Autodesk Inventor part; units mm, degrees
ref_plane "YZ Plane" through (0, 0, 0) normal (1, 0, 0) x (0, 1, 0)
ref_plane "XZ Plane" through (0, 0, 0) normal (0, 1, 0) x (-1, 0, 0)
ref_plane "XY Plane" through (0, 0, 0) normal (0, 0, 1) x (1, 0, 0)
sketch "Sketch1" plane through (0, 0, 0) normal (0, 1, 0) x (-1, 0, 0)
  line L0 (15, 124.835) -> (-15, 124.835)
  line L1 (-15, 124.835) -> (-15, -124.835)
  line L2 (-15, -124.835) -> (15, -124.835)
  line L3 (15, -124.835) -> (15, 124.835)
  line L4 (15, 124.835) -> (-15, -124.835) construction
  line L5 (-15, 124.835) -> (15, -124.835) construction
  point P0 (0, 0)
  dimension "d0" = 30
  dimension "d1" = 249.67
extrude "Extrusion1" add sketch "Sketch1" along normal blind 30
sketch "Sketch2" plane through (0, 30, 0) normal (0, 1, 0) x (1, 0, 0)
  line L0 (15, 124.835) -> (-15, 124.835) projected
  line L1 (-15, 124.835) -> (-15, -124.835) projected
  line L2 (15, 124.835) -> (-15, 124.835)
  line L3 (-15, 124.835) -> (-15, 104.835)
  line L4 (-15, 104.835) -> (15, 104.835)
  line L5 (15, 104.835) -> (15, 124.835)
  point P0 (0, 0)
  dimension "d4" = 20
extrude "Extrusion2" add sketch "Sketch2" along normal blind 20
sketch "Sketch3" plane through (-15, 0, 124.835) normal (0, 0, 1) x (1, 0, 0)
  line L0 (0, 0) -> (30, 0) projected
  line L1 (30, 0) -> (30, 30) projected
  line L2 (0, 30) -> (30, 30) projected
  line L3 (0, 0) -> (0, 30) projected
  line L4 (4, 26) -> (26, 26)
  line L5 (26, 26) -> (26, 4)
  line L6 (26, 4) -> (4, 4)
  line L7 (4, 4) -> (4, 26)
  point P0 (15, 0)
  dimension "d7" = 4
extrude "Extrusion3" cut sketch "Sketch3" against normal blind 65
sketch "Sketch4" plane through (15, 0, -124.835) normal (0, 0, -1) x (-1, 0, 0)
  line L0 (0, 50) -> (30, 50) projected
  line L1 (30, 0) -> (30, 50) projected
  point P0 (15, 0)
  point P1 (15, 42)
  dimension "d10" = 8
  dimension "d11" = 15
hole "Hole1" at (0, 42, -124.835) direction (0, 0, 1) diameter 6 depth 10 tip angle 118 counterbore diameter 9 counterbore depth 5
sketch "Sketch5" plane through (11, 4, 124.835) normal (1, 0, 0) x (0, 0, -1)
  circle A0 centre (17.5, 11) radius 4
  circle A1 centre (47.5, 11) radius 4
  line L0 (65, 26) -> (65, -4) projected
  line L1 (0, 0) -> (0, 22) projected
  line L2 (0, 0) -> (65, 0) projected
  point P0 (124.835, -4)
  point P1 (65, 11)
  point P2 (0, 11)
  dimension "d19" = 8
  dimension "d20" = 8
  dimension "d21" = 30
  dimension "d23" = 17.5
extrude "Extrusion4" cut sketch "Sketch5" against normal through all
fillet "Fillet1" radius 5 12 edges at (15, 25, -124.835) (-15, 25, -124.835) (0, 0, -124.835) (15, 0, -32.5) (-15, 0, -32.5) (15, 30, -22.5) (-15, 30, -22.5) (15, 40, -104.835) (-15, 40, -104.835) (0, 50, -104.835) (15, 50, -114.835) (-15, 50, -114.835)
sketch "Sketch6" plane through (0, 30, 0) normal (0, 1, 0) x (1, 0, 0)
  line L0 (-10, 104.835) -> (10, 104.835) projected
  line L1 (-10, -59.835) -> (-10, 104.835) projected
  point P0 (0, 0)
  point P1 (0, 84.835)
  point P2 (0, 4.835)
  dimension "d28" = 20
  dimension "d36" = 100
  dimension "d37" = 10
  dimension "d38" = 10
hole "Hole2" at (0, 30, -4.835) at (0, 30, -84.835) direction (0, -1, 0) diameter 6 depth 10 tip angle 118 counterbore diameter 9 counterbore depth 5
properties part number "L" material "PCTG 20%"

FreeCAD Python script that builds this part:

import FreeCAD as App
import Part
import Sketcher
Q = App.Units.Quantity


def edges_at(feature, points):
    """Names of the edges that pass closest to the given points."""
    edges = feature.Shape.Edges
    near = lambda p: min(range(len(edges)), key=lambda i: edges[i].distToShape(Part.Vertex(*p))[0])
    return sorted({f"Edge{near(p) + 1}" for p in points})


def add_polygon(sketch, points):
    """Adds a closed chain of lines whose ends are joined by coincident constraints."""
    first, n = sketch.GeometryCount, len(points)
    for a, b in zip(points, points[1:] + points[:1]):
        sketch.addGeometry(Part.LineSegment(App.Vector(*a, 0), App.Vector(*b, 0)), False)
    for i in range(n):
        sketch.addConstraint(Sketcher.Constraint("Coincident", first + i, 2, first + (i + 1) % n, 1))

doc = App.newDocument("Part")
body = doc.addObject("PartDesign::Body", "Body")

# Sketch on XZ plane
sketch1 = body.newObject("Sketcher::SketchObject", "Sketch")
sketch1.AttachmentSupport = (doc.getObject("XZ_Plane"), [""])
sketch1.MapMode = "FlatFace"
add_polygon(sketch1, [(-15, -125), (-15, 125), (15, 125), (15, -125)])  # lines 0-3
sketch1.addConstraint([
    Sketcher.Constraint("Vertical", 0),
    Sketcher.Constraint("Horizontal", 1),
    Sketcher.Constraint("Vertical", 2),
    Sketcher.Constraint("Horizontal", 3),
    Sketcher.Constraint("Symmetric", 0, 2, 2, 2, -1, 1),
    Sketcher.Constraint("DistanceX", 1, 1, 1, 2, Q("30 mm")),
    Sketcher.Constraint("DistanceY", 0, 1, 0, 2, Q("249.67 mm")),
])
pad1 = body.newObject("PartDesign::Pad", "Pad")
pad1.Profile = sketch1
pad1.Length = 30
pad1.Reversed = True

# Sketch on XZ plane
sketch2 = body.newObject("Sketcher::SketchObject", "Sketch001")
sketch2.AttachmentSupport = (doc.getObject("XZ_Plane"), [""])
sketch2.MapMode = "FlatFace"
sketch2.AttachmentOffset = App.Placement(App.Vector(0, 0, -30), App.Rotation())
add_polygon(sketch2, [(15, -105), (15, -125), (-15, -125), (-15, -105)])  # lines 0-3
sketch2.addConstraint([
    Sketcher.Constraint("Vertical", 0),
    Sketcher.Constraint("Horizontal", 1),
    Sketcher.Constraint("Vertical", 2),
    Sketcher.Constraint("Horizontal", 3),
    Sketcher.Constraint("DistanceY", 0, 2, 0, 1, Q("20 mm")),
    Sketcher.Constraint("DistanceX", 1, 2, 1, 1, Q("30 mm")),
    Sketcher.Constraint("DistanceX", -1, 1, 0, 2, Q("15 mm")),
    Sketcher.Constraint("DistanceY", 0, 2, -1, 1, Q("124.835 mm")),
])
pad2 = body.newObject("PartDesign::Pad", "Pad001")
pad2.Profile = sketch2
pad2.Length = 20
pad2.Reversed = True

# Sketch on XY plane
sketch3 = body.newObject("Sketcher::SketchObject", "Sketch002")
sketch3.AttachmentSupport = (doc.getObject("XY_Plane"), [""])
sketch3.MapMode = "FlatFace"
sketch3.AttachmentOffset = App.Placement(App.Vector(0, 0, 124.835), App.Rotation())
add_polygon(sketch3, [(-15, 30), (-15, 0), (15, 0), (15, 30)])  # lines 0-3
add_polygon(sketch3, [(-11, 4), (-11, 26), (11, 26), (11, 4)])  # lines 4-7
sketch3.addConstraint([
    Sketcher.Constraint("Vertical", 0),
    Sketcher.Constraint("Horizontal", 1),
    Sketcher.Constraint("Vertical", 2),
    Sketcher.Constraint("Horizontal", 3),
    Sketcher.Constraint("Vertical", 4),
    Sketcher.Constraint("Horizontal", 5),
    Sketcher.Constraint("Vertical", 6),
    Sketcher.Constraint("Horizontal", 7),
    Sketcher.Constraint("Symmetric", 0, 2, 1, 2, -1, 1),
    Sketcher.Constraint("Equal", 3, 0),
    Sketcher.Constraint("Equal", 7, 4),
    Sketcher.Constraint("DistanceY", -1, 1, 6, 2, Q("4 mm")),
    Sketcher.Constraint("DistanceX", 3, 2, 4, 2, Q("4 mm")),
    Sketcher.Constraint("DistanceY", 4, 2, 3, 2, Q("4 mm")),
    Sketcher.Constraint("DistanceX", 1, 1, 1, 2, Q("30 mm")),
])
pocket1 = body.newObject("PartDesign::Pocket", "Pocket")
pocket1.Profile = sketch3
pocket1.Length = 65

# Sketch on XY plane
sketch4 = body.newObject("Sketcher::SketchObject", "Sketch003")
sketch4.AttachmentSupport = (doc.getObject("XY_Plane"), [""])
sketch4.MapMode = "FlatFace"
sketch4.AttachmentOffset = App.Placement(App.Vector(0, 0, -124.835), App.Rotation())
sketch4.addGeometry(Part.Circle(App.Vector(0, 42, 0), App.Vector(0, 0, 1), 3), False)
sketch4.addConstraint([
    Sketcher.Constraint("PointOnObject", 0, 3, -2),
    Sketcher.Constraint("Diameter", 0, Q("6 mm")),
    Sketcher.Constraint("DistanceY", -1, 1, 0, 3, Q("42 mm")),
])
doc.recompute()
hole = body.newObject("PartDesign::Hole", "Hole")
hole.Profile = sketch4
hole.ThreadType = "None"
hole.Diameter = 6
hole.DepthType = "Dimension"
hole.Depth = 10
hole.DrillPoint = "Angled"
hole.DrillPointAngle = 118
hole.HoleCutType = "Counterbore"
hole.HoleCutDiameter = 9
hole.HoleCutDepth = 5
hole.Reversed = True

# Sketch on YZ plane
sketch5 = body.newObject("Sketcher::SketchObject", "Sketch004")
sketch5.AttachmentSupport = (doc.getObject("YZ_Plane"), [""])
sketch5.MapMode = "FlatFace"
sketch5.AttachmentOffset = App.Placement(App.Vector(0, 0, 11), App.Rotation())
sketch5.addGeometry([
    Part.Circle(App.Vector(15, 107.3, 0), App.Vector(0, 0, 1), 4),
    Part.Circle(App.Vector(15, 77.3, 0), App.Vector(0, 0, 1), 4),
], False)
sketch5.addConstraint([
    Sketcher.Constraint("Equal", 0, 1),
    Sketcher.Constraint("Vertical", 0, 3, 1, 3),
    Sketcher.Constraint("Diameter", 0, Q("8 mm")),
    Sketcher.Constraint("DistanceY", 1, 3, 0, 3, Q("30 mm")),
    Sketcher.Constraint("DistanceX", -1, 1, 0, 3, Q("15 mm")),
    Sketcher.Constraint("DistanceY", -1, 1, 0, 3, Q("107.335 mm")),
])
pocket2 = body.newObject("PartDesign::Pocket", "Pocket001")
pocket2.Profile = sketch5
pocket2.Type = "ThroughAll"
doc.recompute()

fillet = body.newObject("PartDesign::Fillet", "Fillet")
fillet.Base = (pocket2, edges_at(pocket2, [
    (15, 25, -124.835),
    (-15, 25, -124.835),
    (0, 0, -124.835),
    (15, 0, -32.5),
    (-15, 0, -32.5),
    (15, 30, -22.5),
    (-15, 30, -22.5),
    (15, 40, -104.835),
    (-15, 40, -104.835),
    (0, 50, -104.835),
    (15, 50, -114.835),
    (-15, 50, -114.835),
]))
fillet.Radius = 5

# Sketch on XZ plane
sketch6 = body.newObject("Sketcher::SketchObject", "Sketch005")
sketch6.AttachmentSupport = (doc.getObject("XZ_Plane"), [""])
sketch6.MapMode = "FlatFace"
sketch6.AttachmentOffset = App.Placement(App.Vector(0, 0, -30), App.Rotation())
sketch6.addGeometry([
    Part.Circle(App.Vector(0, -4.8, 0), App.Vector(0, 0, 1), 3),
    Part.Circle(App.Vector(0, -84.8, 0), App.Vector(0, 0, 1), 3),
], False)
sketch6.addConstraint([
    Sketcher.Constraint("Equal", 0, 1),
    Sketcher.Constraint("PointOnObject", 0, 3, -2),
    Sketcher.Constraint("PointOnObject", 1, 3, -2),
    Sketcher.Constraint("Diameter", 0, Q("6 mm")),
    Sketcher.Constraint("DistanceY", 1, 3, 0, 3, Q("80 mm")),
    Sketcher.Constraint("DistanceY", 0, 3, -1, 1, Q("4.835 mm")),
])
doc.recompute()
hole2 = body.newObject("PartDesign::Hole", "Hole001")
hole2.Profile = sketch6
hole2.ThreadType = "None"
hole2.Diameter = 6
hole2.DepthType = "Dimension"
hole2.Depth = 10
hole2.DrillPoint = "Angled"
hole2.DrillPointAngle = 118
hole2.HoleCutType = "Counterbore"
hole2.HoleCutDiameter = 9
hole2.HoleCutDepth = 5
hole2.Reversed = True

doc.recompute()
